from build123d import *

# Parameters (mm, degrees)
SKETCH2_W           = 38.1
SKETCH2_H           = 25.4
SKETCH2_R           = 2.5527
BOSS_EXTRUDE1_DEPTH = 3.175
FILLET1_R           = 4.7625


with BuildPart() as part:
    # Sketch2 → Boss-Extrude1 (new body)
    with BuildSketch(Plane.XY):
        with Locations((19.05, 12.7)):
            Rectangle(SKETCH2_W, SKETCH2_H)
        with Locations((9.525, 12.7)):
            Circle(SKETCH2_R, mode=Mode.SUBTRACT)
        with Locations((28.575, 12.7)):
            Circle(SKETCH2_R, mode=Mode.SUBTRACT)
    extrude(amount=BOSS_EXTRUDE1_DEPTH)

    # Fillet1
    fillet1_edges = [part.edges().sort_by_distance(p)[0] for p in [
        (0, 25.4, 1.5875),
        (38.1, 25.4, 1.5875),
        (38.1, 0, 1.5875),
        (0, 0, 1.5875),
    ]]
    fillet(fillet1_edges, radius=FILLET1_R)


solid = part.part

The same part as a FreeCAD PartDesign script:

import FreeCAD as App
import Part
import Sketcher

V = App.Vector
Q = App.Units.Quantity


def edges_at(feature, points):
    """Names of the edges that pass closest to the given points."""
    edges = feature.Shape.Edges
    near = lambda p: min(range(len(edges)), key=lambda i: edges[i].distToShape(Part.Vertex(*p))[0])
    return sorted({f"Edge{near(p) + 1}" for p in points})

doc = App.newDocument("Part")
body = doc.addObject("PartDesign::Body", "Body")

sketch1 = body.newObject("Sketcher::SketchObject", "Sketch")
sketch1.AttachmentSupport = (doc.getObject("XY_Plane"), [""])
sketch1.MapMode = "FlatFace"
sketch1.addGeometry([
    Part.LineSegment(V(0, 25.4, 0), V(0, 0, 0)),
    Part.LineSegment(V(0, 0, 0), V(38.1, 0, 0)),
    Part.LineSegment(V(38.1, 0, 0), V(38.1, 25.4, 0)),
    Part.LineSegment(V(38.1, 25.4, 0), V(0, 25.4, 0)),
    Part.Circle(V(9.525, 12.7, 0), V(0, 0, 1), 2.5527),
    Part.Circle(V(28.575, 12.7, 0), V(0, 0, 1), 2.5527),
], False)
sketch1.addConstraint([
    Sketcher.Constraint("Coincident", 0, 2, 1, 1),
    Sketcher.Constraint("Coincident", 1, 2, 2, 1),
    Sketcher.Constraint("Coincident", 2, 2, 3, 1),
    Sketcher.Constraint("Coincident", 3, 2, 0, 1),
    Sketcher.Constraint("Vertical", 0),
    Sketcher.Constraint("Horizontal", 1),
    Sketcher.Constraint("Vertical", 2),
    Sketcher.Constraint("Horizontal", 3),
    Sketcher.Constraint("Coincident", 0, 2, -1, 1),
    Sketcher.Constraint("Equal", 4, 5),
    Sketcher.Constraint("Horizontal", 4, 3, 5, 3),
    Sketcher.Constraint("DistanceY", 0, 2, 0, 1, Q("1 in")),
    Sketcher.Constraint("Diameter", 4, Q("0.201 in")),
    Sketcher.Constraint("DistanceX", 1, 1, 1, 2, Q("1.5 in")),
    Sketcher.Constraint("DistanceY", -1, 1, 4, 3, Q("0.5 in")),
    Sketcher.Constraint("DistanceX", 4, 3, 5, 3, Q("0.75 in")),
    Sketcher.Constraint("DistanceX", -1, 1, 4, 3, Q("0.375 in")),
])
pad1 = body.newObject("PartDesign::Pad", "Pad")
pad1.Profile = sketch1
pad1.Length = Q("0.125 in")
doc.recompute()

fillet = body.newObject("PartDesign::Fillet", "Fillet")
fillet.Base = (pad1, edges_at(pad1, [
    (0, 25.4, 1.587),
    (38.1, 25.4, 1.587),
    (38.1, 0, 1.587),
    (0, 0, 1.587),
]))
fillet.Radius = Q("0.1875 in")

doc.recompute()
